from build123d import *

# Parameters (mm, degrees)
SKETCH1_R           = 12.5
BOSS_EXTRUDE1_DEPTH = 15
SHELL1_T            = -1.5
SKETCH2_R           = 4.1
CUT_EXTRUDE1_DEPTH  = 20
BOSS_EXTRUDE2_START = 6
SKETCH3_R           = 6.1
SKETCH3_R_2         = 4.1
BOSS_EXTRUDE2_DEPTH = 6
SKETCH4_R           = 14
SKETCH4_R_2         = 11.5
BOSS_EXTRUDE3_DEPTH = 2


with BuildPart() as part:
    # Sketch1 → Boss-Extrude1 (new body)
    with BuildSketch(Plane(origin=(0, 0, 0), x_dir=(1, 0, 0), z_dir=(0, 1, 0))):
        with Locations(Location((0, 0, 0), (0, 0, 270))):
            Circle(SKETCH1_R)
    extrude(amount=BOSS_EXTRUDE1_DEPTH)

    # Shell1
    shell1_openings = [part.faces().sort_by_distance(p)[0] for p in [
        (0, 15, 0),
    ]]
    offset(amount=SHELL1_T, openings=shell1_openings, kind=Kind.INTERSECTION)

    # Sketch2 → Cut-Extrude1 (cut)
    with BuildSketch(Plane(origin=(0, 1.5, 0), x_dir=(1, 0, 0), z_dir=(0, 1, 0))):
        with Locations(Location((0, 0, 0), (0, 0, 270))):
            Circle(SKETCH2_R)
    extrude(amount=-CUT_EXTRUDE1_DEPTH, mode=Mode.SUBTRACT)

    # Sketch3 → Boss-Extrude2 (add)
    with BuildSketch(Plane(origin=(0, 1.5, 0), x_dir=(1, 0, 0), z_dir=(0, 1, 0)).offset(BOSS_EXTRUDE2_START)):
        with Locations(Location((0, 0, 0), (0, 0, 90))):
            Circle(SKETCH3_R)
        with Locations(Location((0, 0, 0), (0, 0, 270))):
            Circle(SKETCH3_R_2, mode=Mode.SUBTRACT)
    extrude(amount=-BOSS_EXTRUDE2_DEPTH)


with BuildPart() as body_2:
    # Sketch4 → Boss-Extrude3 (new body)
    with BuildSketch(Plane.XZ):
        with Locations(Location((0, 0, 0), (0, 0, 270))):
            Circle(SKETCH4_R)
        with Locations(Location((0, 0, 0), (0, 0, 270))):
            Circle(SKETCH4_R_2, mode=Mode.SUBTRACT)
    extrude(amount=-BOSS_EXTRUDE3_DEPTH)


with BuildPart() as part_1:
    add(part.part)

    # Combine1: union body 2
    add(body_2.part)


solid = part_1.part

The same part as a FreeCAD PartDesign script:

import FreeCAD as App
import Part
import Sketcher

V = App.Vector
Q = App.Units.Quantity


def faces_at(feature, points):
    """Names of the faces that lie closest to the given points."""
    faces = feature.Shape.Faces
    near = lambda p: min(range(len(faces)), key=lambda i: faces[i].distToShape(Part.Vertex(*p))[0])
    return sorted({f"Face{near(p) + 1}" for p in points})

doc = App.newDocument("Part")
params = doc.addObject("Spreadsheet::Sheet", "Params")
for row, (alias, value) in enumerate([
    ("sketch1_diameter", "25 mm"),
    ("pad1_length", "15 mm"),
    ("thickness_wall", "1.5 mm"),
    ("sketch2_diameter", "8.2 mm"),
    ("pocket1_length", "20 mm"),
    ("sketch3_diameter", "12.2 mm"),
    ("sketch3_diameter2", "8.2 mm"),
    ("pad2_length", "6 mm"),
    ("sketch4_diameter", "28 mm"),
    ("sketch4_diameter2", "23 mm"),
    ("pad3_length", "2 mm"),
], start=1):
    params.set(f"A{row}", alias)
    params.set(f"B{row}", "=" + value)
    params.setAlias(f"B{row}", alias)

body = doc.addObject("PartDesign::Body", "Body")

sketch1 = body.newObject("Sketcher::SketchObject", "Sketch")
sketch1.AttachmentSupport = (doc.getObject("XZ_Plane"), [""])
sketch1.MapMode = "FlatFace"
sketch1.addGeometry(Part.Circle(V(0, 0, 0), V(0, 0, 1), 12), False)
sketch1.addConstraint([
    Sketcher.Constraint("Coincident", 0, 3, -1, 1),
    Sketcher.Constraint("Diameter", 0, Q("25 mm")),
])
sketch1.setExpression("Constraints[1]", "Params.sketch1_diameter")
pad1 = body.newObject("PartDesign::Pad", "Pad")
pad1.Profile = sketch1
pad1.setExpression("Length", "Params.pad1_length")
pad1.Reversed = True
doc.recompute()

thickness = body.newObject("PartDesign::Thickness", "Thickness")
thickness.Base = (pad1, faces_at(pad1, [(0, 15, 0)]))
thickness.setExpression("Value", "Params.thickness_wall")
thickness.Reversed = True
thickness.Join = "Intersection"

sketch2 = body.newObject("Sketcher::SketchObject", "Sketch001")
sketch2.AttachmentSupport = (doc.getObject("XZ_Plane"), [""])
sketch2.MapMode = "FlatFace"
sketch2.AttachmentOffset = App.Placement(V(0, 0, -1.5), App.Rotation())
sketch2.addGeometry(Part.Circle(V(0, 0, 0), V(0, 0, 1), 4.1), False)
sketch2.addConstraint([
    Sketcher.Constraint("Coincident", 0, 3, -1, 1),
    Sketcher.Constraint("Diameter", 0, Q("8.2 mm")),
])
sketch2.setExpression("Constraints[1]", "Params.sketch2_diameter")
pocket1 = body.newObject("PartDesign::Pocket", "Pocket")
pocket1.Profile = sketch2
pocket1.setExpression("Length", "Params.pocket1_length")
pocket1.Reversed = True

sketch3 = body.newObject("Sketcher::SketchObject", "Sketch002")
sketch3.AttachmentSupport = (doc.getObject("XZ_Plane"), [""])
sketch3.MapMode = "FlatFace"
sketch3.AttachmentOffset = App.Placement(V(0, 0, -7.5), App.Rotation())
sketch3.addGeometry([
    Part.Circle(V(0, 0, 0), V(0, 0, 1), 6.1),
    Part.Circle(V(0, 0, 0), V(0, 0, 1), 4.1),
], False)
sketch3.addConstraint([
    Sketcher.Constraint("Coincident", 0, 3, -1, 1),
    Sketcher.Constraint("Coincident", 1, 3, -1, 1),
    Sketcher.Constraint("Diameter", 0, Q("12.2 mm")),
    Sketcher.Constraint("Diameter", 1, Q("8.2 mm")),
])
sketch3.setExpression("Constraints[2]", "Params.sketch3_diameter")
sketch3.setExpression("Constraints[3]", "Params.sketch3_diameter2")
pad2 = body.newObject("PartDesign::Pad", "Pad001")
pad2.Profile = sketch3
pad2.setExpression("Length", "Params.pad2_length")
body2 = doc.addObject("PartDesign::Body", "Body001")

sketch4 = body2.newObject("Sketcher::SketchObject", "Sketch003")
sketch4.AttachmentSupport = (doc.getObject("XZ_Plane001"), [""])
sketch4.MapMode = "FlatFace"
sketch4.addGeometry([
    Part.Circle(V(0, 0, 0), V(0, 0, 1), 14),
    Part.Circle(V(0, 0, 0), V(0, 0, 1), 12),
], False)
sketch4.addConstraint([
    Sketcher.Constraint("Coincident", 0, 3, -1, 1),
    Sketcher.Constraint("Coincident", 1, 3, -1, 1),
    Sketcher.Constraint("Diameter", 0, Q("28 mm")),
    Sketcher.Constraint("Diameter", 1, Q("23 mm")),
])
sketch4.setExpression("Constraints[2]", "Params.sketch4_diameter")
sketch4.setExpression("Constraints[3]", "Params.sketch4_diameter2")
pad3 = body2.newObject("PartDesign::Pad", "Pad002")
pad3.Profile = sketch4
pad3.setExpression("Length", "Params.pad3_length")
pad3.Reversed = True
doc.recompute()

boolean = body.newObject("PartDesign::Boolean", "Boolean")
boolean.Type = "Fuse"
boolean.addObjects([body2])

doc.recompute()
